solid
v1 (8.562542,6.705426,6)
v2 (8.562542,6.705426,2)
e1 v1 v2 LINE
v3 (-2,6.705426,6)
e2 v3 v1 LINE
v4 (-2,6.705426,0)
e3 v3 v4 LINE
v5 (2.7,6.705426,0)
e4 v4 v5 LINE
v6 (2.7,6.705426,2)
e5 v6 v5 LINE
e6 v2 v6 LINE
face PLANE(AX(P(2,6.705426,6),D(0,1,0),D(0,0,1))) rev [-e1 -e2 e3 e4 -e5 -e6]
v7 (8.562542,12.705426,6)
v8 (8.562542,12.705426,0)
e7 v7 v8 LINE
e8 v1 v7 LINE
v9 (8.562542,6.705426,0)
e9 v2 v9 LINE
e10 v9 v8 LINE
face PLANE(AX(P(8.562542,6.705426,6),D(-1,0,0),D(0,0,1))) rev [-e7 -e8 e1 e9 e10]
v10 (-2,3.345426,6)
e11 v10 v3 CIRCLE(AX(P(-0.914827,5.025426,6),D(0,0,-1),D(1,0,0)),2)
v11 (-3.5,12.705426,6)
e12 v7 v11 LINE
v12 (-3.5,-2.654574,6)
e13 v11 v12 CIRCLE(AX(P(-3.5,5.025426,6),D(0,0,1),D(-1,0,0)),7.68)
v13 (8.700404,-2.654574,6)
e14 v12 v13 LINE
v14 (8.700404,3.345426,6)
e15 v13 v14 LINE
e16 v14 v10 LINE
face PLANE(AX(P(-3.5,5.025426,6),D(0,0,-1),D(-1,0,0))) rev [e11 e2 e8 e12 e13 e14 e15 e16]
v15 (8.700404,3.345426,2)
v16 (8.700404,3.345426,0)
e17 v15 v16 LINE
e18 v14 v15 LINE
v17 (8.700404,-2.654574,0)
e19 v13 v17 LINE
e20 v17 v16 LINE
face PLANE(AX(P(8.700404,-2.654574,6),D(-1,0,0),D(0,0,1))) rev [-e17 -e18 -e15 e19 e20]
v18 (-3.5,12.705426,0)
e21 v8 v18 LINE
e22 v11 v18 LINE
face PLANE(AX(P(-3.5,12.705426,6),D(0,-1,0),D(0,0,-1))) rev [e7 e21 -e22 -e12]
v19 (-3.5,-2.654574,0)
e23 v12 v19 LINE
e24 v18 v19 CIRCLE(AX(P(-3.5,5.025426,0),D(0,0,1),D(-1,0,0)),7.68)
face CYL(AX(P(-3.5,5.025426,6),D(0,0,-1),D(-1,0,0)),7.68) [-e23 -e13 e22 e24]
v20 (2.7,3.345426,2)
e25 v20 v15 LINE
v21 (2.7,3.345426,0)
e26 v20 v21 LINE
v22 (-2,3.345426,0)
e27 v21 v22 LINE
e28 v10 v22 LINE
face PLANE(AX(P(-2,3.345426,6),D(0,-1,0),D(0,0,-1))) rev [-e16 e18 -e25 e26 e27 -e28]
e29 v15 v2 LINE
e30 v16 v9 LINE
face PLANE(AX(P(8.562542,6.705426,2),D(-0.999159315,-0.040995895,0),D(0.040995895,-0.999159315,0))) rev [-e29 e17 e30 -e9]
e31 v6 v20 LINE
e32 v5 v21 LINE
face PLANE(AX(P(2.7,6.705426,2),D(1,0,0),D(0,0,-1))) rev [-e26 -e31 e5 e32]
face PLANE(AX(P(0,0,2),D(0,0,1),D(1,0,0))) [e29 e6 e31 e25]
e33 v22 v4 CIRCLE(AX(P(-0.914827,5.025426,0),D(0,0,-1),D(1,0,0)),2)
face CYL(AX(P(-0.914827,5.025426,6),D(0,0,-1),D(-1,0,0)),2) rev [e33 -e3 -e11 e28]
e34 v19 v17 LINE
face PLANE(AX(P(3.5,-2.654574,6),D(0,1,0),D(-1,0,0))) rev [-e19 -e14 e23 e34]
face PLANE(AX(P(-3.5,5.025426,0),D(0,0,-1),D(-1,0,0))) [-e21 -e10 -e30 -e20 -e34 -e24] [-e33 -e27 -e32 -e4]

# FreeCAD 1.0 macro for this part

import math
import FreeCAD as App
import Part
import Sketcher
Q = App.Units.Quantity


def add_polygon(sketch, points):
    """Adds a closed chain of lines whose ends are joined by coincident constraints."""
    first, n = sketch.GeometryCount, len(points)
    for a, b in zip(points, points[1:] + points[:1]):
        sketch.addGeometry(Part.LineSegment(App.Vector(*a, 0), App.Vector(*b, 0)), False)
    for i in range(n):
        sketch.addConstraint(Sketcher.Constraint("Coincident", first + i, 2, first + (i + 1) % n, 1))

doc = App.newDocument("Part")
params = doc.addObject("Spreadsheet::Sheet", "Params")
for row, (alias, value) in enumerate([
    ("sketch1_radius", "2 mm"),
    ("sketch1_height", "6 mm"),
    ("sketch1_radius2", "7.68 mm"),
    ("pad1_length", "6 mm"),
    ("sketch2_height", "3.36 mm"),
    ("pad2_length", "2 mm"),
], start=1):
    params.set(f"A{row}", alias)
    params.set(f"B{row}", "=" + value)
    params.setAlias(f"B{row}", alias)

body = doc.addObject("PartDesign::Body", "Body")

# Sketch on XY plane
sketch1 = body.newObject("Sketcher::SketchObject", "Sketch")
sketch1.AttachmentSupport = (doc.getObject("XY_Plane"), [""])
sketch1.MapMode = "FlatFace"
sketch1.addGeometry(Part.LineSegment(App.Vector(-2, 6.7, 0), App.Vector(8.6, 6.7, 0)), False)
sketch1.addGeometry(Part.LineSegment(App.Vector(8.6, 6.7, 0), App.Vector(8.6, 12.7, 0)), False)
sketch1.addGeometry(Part.LineSegment(App.Vector(8.6, 12.7, 0), App.Vector(-3.5, 12.7, 0)), False)
sketch1.addGeometry(Part.ArcOfCircle(Part.Circle(App.Vector(-3.5, 5, 0), App.Vector(0, 0, 1), 7.7), math.radians(90), math.radians(270)), False)
sketch1.addGeometry(Part.LineSegment(App.Vector(-3.5, -2.7, 0), App.Vector(8.7, -2.7, 0)), False)
sketch1.addGeometry(Part.LineSegment(App.Vector(8.7, -2.7, 0), App.Vector(8.7, 3.3, 0)), False)
sketch1.addGeometry(Part.LineSegment(App.Vector(8.7, 3.3, 0), App.Vector(-2, 3.3, 0)), False)
sketch1.addGeometry(Part.ArcOfCircle(Part.Circle(App.Vector(-0.9, 5, 0), App.Vector(0, 0, 1), 2), math.radians(123), math.radians(237)), False)
sketch1.addConstraint(Sketcher.Constraint("Coincident", 0, 2, 1, 1))
sketch1.addConstraint(Sketcher.Constraint("Coincident", 1, 2, 2, 1))
sketch1.addConstraint(Sketcher.Constraint("Tangent", 2, 2, 3, 1))
sketch1.addConstraint(Sketcher.Constraint("Tangent", 3, 2, 4, 1))
sketch1.addConstraint(Sketcher.Constraint("Coincident", 4, 2, 5, 1))
sketch1.addConstraint(Sketcher.Constraint("Coincident", 5, 2, 6, 1))
sketch1.addConstraint(Sketcher.Constraint("Coincident", 6, 2, 7, 2))
sketch1.addConstraint(Sketcher.Constraint("Coincident", 7, 1, 0, 1))
sketch1.addConstraint(Sketcher.Constraint("Horizontal", 0))
sketch1.addConstraint(Sketcher.Constraint("Vertical", 1))
sketch1.addConstraint(Sketcher.Constraint("Horizontal", 2))
sketch1.addConstraint(Sketcher.Constraint("Horizontal", 4))
sketch1.addConstraint(Sketcher.Constraint("Vertical", 5))
sketch1.addConstraint(Sketcher.Constraint("Horizontal", 6))
sketch1.addConstraint(Sketcher.Constraint("Horizontal", 3, 3, 7, 3))
sketch1.addConstraint(Sketcher.Constraint("Vertical", 6, 2, 7, 1))
sketch1.addConstraint(Sketcher.Constraint("Radius", 7, Q("2 mm")))
sketch1.addConstraint(Sketcher.Constraint("DistanceY", 1, 1, 1, 2, Q("6 mm")))
sketch1.addConstraint(Sketcher.Constraint("Radius", 3, Q("7.68 mm")))
sketch1.addConstraint(Sketcher.Constraint("DistanceX", 6, 2, -1, 1, Q("2 mm")))
sketch1.addConstraint(Sketcher.Constraint("DistanceX", 3, 3, -1, 1, Q("3.5 mm")))
sketch1.addConstraint(Sketcher.Constraint("DistanceX", 0, 1, 0, 2, Q("10.562542 mm")))
sketch1.addConstraint(Sketcher.Constraint("DistanceX", 4, 1, 4, 2, Q("12.200404 mm")))
sketch1.addConstraint(Sketcher.Constraint("DistanceY", -1, 1, 3, 3, Q("5.025426 mm")))
sketch1.setExpression("Constraints[16]", "Params.sketch1_radius")
sketch1.setExpression("Constraints[17]", "Params.sketch1_height")
sketch1.setExpression("Constraints[18]", "Params.sketch1_radius2")
pad1 = body.newObject("PartDesign::Pad", "Pad")
pad1.Profile = sketch1
pad1.setExpression("Length", "Params.pad1_length")

# Sketch on XY plane
sketch2 = body.newObject("Sketcher::SketchObject", "Sketch001")
sketch2.AttachmentSupport = (doc.getObject("XY_Plane"), [""])
sketch2.MapMode = "FlatFace"
add_polygon(sketch2, [(8.7, 3.3), (8.6, 6.7), (2.7, 6.7), (2.7, 3.3)])  # lines 0-3
sketch2.addConstraint(Sketcher.Constraint("Horizontal", 1))
sketch2.addConstraint(Sketcher.Constraint("Vertical", 2))
sketch2.addConstraint(Sketcher.Constraint("Horizontal", 3))
sketch2.addConstraint(Sketcher.Constraint("DistanceY", 2, 2, 2, 1, Q("3.36 mm")))
sketch2.addConstraint(Sketcher.Constraint("DistanceX", -1, 1, 1, 2, Q("2.7 mm")))
sketch2.addConstraint(Sketcher.Constraint("DistanceX", 1, 2, 1, 1, Q("5.862542 mm")))
sketch2.addConstraint(Sketcher.Constraint("DistanceX", 3, 1, 3, 2, Q("6.000404 mm")))
sketch2.addConstraint(Sketcher.Constraint("DistanceY", -1, 1, 0, 2, Q("6.705426 mm")))
sketch2.setExpression("Constraints[7]", "Params.sketch2_height")
pad2 = body.newObject("PartDesign::Pad", "Pad001")
pad2.Profile = sketch2
pad2.setExpression("Length", "Params.pad2_length")

doc.recompute()
